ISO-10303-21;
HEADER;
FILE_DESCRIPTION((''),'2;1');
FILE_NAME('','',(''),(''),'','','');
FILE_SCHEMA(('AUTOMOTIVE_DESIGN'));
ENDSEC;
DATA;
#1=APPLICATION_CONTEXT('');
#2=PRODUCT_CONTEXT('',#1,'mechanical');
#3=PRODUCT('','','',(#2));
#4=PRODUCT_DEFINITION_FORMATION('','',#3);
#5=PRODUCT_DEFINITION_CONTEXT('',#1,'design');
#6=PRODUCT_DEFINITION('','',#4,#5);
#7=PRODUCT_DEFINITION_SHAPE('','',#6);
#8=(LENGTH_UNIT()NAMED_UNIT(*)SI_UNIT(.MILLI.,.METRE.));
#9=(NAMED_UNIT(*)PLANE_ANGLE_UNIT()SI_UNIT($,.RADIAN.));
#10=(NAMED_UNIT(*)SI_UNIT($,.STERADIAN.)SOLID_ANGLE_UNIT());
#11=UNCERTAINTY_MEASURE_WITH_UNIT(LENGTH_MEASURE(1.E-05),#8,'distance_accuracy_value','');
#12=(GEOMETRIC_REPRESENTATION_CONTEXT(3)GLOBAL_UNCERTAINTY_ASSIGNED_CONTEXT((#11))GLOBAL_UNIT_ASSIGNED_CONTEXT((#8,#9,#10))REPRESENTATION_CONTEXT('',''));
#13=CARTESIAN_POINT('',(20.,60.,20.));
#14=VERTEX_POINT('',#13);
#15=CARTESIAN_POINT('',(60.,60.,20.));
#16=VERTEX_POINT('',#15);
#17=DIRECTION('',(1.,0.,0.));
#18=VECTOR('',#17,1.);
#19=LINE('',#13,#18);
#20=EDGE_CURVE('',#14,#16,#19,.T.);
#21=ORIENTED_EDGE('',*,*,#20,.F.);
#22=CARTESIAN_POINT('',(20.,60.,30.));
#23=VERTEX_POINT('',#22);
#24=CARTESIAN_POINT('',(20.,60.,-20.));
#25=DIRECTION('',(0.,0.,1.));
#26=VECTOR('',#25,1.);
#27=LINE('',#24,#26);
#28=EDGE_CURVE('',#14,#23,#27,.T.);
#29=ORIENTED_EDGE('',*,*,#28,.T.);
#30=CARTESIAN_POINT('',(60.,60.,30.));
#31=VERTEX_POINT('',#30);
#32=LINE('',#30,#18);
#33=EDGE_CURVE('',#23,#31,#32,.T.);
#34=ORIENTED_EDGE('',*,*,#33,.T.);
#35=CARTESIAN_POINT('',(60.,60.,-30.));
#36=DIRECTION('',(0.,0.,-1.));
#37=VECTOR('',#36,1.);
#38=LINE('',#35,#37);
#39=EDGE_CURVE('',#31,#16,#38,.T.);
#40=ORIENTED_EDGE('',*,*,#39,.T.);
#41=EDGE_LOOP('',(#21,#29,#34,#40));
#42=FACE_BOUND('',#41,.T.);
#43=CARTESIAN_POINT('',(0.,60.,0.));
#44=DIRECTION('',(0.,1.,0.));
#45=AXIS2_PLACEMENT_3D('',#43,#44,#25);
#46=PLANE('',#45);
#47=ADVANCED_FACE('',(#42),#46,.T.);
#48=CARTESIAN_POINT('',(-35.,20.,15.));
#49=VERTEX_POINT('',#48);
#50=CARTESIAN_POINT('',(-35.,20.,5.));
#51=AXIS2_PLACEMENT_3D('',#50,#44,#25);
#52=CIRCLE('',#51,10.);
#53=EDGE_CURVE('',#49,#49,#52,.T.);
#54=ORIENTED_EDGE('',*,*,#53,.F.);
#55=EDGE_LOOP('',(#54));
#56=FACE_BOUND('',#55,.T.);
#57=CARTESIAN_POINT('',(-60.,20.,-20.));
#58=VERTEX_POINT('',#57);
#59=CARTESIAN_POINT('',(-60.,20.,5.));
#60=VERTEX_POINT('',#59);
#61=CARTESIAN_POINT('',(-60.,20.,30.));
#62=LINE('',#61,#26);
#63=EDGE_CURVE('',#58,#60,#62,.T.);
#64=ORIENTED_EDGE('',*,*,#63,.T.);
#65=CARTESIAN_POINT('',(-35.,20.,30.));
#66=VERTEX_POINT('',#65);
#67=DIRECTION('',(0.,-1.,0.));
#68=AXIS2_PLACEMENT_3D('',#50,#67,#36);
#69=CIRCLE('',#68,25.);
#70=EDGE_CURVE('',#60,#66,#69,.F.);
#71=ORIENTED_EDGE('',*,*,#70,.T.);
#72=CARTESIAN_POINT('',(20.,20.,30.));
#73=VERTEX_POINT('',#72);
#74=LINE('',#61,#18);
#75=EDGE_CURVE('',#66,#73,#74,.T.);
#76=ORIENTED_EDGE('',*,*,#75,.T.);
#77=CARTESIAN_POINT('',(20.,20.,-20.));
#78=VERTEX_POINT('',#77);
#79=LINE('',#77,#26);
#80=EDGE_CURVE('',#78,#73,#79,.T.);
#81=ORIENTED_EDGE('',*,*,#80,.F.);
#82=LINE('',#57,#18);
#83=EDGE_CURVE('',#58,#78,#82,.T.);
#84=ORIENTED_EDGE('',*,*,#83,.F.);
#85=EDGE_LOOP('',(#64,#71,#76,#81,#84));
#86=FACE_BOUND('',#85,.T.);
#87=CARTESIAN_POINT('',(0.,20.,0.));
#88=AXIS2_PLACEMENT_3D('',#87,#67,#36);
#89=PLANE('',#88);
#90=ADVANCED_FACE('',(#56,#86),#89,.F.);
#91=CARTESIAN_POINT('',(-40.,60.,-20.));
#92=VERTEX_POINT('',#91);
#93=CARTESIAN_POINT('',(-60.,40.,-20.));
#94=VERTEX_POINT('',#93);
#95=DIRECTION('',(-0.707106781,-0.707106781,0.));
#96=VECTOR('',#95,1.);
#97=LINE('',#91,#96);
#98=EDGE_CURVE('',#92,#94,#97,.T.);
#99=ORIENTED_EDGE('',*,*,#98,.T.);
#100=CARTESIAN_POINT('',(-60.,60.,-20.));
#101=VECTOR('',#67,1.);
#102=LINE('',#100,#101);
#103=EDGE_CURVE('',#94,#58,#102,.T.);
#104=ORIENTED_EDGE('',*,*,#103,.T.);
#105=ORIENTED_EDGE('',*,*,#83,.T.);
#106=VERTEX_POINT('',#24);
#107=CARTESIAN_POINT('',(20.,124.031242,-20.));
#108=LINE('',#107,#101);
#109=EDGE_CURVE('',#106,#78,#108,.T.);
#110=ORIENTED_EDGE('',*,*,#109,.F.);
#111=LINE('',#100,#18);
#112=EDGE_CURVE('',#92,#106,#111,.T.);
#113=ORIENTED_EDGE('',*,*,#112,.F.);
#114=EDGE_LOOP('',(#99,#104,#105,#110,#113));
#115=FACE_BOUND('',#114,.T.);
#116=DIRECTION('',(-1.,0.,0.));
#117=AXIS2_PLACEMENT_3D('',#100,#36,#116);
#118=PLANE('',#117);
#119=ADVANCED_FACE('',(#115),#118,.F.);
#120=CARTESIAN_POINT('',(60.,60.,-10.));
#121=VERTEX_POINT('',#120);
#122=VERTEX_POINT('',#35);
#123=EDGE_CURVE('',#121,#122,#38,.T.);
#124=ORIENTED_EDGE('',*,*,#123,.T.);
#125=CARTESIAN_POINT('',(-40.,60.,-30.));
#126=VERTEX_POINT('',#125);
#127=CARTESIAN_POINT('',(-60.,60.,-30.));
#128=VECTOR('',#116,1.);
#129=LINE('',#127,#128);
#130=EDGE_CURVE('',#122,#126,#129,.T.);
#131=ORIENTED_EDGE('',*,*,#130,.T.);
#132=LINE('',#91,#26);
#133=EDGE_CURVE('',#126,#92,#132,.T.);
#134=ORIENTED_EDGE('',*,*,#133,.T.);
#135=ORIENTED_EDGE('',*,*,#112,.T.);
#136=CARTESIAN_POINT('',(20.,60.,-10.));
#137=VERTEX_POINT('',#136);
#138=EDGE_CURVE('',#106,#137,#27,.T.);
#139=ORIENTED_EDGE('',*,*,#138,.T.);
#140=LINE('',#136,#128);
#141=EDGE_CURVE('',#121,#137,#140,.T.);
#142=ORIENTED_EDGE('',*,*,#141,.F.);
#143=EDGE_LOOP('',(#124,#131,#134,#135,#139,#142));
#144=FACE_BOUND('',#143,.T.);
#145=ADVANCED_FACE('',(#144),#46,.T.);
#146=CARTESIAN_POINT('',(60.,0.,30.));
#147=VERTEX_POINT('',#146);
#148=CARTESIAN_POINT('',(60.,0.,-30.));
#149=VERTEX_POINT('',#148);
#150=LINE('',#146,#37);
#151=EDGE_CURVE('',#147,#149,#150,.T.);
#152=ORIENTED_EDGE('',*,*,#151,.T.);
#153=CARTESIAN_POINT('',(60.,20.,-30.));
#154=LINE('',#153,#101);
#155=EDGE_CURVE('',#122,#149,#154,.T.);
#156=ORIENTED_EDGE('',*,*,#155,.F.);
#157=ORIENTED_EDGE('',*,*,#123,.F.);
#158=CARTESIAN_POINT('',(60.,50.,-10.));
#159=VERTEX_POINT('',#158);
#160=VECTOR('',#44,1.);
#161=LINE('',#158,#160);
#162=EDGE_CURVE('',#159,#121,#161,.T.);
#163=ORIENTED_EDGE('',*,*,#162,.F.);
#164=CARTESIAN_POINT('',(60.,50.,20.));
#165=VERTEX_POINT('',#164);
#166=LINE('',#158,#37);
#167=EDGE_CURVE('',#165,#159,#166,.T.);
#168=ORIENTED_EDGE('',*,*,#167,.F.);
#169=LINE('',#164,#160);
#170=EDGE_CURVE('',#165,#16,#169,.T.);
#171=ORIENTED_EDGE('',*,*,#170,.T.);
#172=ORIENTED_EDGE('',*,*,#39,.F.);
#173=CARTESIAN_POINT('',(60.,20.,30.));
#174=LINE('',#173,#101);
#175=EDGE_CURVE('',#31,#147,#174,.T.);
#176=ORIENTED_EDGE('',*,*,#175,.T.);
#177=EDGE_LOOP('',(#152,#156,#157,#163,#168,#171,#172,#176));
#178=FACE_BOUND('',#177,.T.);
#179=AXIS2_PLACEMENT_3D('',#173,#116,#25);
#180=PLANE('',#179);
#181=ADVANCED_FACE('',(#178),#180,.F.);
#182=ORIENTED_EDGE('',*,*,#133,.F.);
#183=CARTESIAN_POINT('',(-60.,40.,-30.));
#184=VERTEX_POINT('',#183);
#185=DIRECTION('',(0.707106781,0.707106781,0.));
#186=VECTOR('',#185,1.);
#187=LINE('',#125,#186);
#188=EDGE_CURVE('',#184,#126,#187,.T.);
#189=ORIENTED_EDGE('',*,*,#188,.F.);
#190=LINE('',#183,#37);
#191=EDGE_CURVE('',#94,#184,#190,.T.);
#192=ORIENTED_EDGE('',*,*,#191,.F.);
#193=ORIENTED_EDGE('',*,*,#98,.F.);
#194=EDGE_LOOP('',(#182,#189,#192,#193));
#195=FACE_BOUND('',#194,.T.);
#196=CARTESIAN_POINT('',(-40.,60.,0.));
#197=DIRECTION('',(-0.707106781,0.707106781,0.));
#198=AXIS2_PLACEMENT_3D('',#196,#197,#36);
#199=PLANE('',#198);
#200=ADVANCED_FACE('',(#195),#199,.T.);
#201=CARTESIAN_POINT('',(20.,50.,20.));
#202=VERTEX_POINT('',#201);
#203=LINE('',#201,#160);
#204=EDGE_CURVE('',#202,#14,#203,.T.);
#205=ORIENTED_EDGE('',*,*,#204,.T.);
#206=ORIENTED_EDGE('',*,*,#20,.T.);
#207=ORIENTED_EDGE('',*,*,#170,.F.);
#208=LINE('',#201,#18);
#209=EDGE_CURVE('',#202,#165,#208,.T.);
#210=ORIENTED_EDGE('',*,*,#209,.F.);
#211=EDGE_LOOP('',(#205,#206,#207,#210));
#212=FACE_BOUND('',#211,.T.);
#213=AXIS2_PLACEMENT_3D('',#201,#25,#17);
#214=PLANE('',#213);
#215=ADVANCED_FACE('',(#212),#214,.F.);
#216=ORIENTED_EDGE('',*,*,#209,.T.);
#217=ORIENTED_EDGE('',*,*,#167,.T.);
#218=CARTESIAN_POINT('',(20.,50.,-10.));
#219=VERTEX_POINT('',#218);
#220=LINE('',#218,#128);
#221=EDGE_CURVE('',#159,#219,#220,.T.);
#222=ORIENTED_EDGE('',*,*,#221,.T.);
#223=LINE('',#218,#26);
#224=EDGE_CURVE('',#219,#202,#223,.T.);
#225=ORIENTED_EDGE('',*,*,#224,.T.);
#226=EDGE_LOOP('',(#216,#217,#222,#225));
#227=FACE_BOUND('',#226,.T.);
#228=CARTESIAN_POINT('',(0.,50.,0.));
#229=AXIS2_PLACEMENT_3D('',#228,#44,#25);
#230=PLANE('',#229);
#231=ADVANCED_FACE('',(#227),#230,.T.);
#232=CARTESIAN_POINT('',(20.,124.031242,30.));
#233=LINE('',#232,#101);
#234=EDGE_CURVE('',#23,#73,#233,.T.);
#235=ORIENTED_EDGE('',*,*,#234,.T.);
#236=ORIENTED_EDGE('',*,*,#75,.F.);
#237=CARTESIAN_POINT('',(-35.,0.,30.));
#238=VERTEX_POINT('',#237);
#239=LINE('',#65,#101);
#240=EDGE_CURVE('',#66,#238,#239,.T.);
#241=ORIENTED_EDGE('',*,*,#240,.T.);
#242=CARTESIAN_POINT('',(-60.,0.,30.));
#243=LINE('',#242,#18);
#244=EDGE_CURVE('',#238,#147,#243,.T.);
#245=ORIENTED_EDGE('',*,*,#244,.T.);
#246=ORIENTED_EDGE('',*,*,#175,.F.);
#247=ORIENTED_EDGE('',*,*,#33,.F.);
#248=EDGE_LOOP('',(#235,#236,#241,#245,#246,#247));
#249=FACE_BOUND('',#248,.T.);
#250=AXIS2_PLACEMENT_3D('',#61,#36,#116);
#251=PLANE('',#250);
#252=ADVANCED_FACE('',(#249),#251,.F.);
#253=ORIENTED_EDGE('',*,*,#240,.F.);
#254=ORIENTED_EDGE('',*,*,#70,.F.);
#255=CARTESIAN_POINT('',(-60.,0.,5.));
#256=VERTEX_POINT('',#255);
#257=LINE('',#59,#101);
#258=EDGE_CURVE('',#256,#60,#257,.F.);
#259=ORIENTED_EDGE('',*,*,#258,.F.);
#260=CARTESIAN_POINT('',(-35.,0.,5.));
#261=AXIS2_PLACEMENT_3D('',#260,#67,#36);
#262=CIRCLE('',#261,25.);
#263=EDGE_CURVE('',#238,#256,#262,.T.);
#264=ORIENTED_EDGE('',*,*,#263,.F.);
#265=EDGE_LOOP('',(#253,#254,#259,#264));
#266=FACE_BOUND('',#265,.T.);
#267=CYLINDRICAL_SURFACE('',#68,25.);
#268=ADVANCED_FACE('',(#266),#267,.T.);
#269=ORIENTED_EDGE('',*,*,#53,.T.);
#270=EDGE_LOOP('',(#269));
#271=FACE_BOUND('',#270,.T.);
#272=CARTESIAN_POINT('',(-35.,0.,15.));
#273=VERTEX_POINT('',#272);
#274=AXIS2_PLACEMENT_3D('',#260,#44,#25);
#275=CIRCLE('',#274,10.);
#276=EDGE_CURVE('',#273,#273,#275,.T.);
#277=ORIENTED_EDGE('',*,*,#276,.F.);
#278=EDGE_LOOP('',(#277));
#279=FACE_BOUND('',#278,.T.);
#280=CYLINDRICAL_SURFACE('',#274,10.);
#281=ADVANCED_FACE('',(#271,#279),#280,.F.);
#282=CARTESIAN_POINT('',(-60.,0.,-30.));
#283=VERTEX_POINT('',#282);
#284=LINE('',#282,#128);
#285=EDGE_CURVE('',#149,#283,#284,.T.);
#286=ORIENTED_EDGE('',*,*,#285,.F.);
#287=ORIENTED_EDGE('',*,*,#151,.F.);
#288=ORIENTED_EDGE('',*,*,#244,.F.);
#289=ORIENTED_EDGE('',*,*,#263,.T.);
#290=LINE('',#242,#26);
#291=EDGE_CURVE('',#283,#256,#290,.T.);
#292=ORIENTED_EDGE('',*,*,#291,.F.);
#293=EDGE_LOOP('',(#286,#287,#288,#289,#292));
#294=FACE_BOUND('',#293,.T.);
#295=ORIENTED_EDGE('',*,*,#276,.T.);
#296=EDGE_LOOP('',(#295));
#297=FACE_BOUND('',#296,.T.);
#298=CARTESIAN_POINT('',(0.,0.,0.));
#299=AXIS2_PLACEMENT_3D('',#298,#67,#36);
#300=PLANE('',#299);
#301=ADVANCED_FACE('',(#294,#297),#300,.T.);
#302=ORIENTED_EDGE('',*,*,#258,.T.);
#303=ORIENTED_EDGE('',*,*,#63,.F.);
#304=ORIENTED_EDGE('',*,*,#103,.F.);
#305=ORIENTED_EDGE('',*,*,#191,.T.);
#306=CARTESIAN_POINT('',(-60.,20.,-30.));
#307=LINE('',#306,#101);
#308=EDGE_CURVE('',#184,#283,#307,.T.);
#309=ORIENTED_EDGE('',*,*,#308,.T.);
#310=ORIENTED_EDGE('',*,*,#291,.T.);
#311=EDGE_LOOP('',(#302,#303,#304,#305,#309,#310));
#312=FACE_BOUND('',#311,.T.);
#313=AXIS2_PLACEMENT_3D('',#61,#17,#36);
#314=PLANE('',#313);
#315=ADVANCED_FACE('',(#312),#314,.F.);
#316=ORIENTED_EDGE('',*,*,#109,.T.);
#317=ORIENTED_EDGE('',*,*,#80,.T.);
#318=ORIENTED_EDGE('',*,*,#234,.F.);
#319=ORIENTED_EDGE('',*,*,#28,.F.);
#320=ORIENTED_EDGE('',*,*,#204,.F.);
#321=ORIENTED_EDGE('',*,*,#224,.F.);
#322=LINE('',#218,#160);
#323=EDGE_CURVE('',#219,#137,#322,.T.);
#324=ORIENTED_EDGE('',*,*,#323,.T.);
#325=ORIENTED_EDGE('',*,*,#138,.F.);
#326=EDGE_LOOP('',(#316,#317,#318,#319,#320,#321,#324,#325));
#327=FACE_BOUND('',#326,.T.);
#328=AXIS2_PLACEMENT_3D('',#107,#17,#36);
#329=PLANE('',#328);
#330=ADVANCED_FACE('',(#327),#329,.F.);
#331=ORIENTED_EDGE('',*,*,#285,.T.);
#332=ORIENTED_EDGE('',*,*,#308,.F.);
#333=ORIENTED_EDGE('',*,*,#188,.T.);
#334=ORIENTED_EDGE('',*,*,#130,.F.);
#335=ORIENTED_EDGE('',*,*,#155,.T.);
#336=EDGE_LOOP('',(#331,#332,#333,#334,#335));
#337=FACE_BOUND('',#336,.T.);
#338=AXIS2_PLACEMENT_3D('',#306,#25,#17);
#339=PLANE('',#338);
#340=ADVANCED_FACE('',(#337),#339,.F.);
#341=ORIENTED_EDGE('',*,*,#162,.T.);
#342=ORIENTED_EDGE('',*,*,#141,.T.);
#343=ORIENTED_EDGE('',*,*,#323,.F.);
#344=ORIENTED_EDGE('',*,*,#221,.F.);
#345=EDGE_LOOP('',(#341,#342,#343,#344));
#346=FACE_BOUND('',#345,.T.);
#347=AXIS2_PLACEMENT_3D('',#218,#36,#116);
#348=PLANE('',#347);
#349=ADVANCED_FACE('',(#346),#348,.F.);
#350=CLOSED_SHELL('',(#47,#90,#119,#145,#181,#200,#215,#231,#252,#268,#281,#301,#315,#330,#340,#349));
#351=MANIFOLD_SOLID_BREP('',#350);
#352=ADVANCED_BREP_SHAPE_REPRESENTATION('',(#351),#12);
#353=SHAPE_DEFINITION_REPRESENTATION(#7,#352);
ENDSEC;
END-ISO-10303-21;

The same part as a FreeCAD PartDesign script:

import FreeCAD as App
import Part
import Sketcher

V = App.Vector
Q = App.Units.Quantity


def edges_at(feature, points):
    """Names of the edges that pass closest to the given points."""
    edges = feature.Shape.Edges
    near = lambda p: min(range(len(edges)), key=lambda i: edges[i].distToShape(Part.Vertex(*p))[0])
    return sorted({f"Edge{near(p) + 1}" for p in points})


def add_polygon(sketch, points):
    """Adds a closed chain of lines whose ends are joined by coincident constraints."""
    first, n = sketch.GeometryCount, len(points)
    for a, b in zip(points, points[1:] + points[:1]):
        sketch.addGeometry(Part.LineSegment(App.Vector(*a, 0), App.Vector(*b, 0)), False)
    for i in range(n):
        sketch.addConstraint(Sketcher.Constraint("Coincident", first + i, 2, first + (i + 1) % n, 1))

doc = App.newDocument("Part")
body = doc.addObject("PartDesign::Body", "Body")

# Sketch on XZ plane
sketch1 = body.newObject("Sketcher::SketchObject", "Sketch")
sketch1.AttachmentSupport = (doc.getObject("XZ_Plane"), [""])
sketch1.MapMode = "FlatFace"
add_polygon(sketch1, [(-60, -30), (-60, 30), (60, 30), (60, -30)])  # lines 0-3
sketch1.addConstraint(Sketcher.Constraint("Vertical", 0))
sketch1.addConstraint(Sketcher.Constraint("Horizontal", 1))
sketch1.addConstraint(Sketcher.Constraint("Vertical", 2))
sketch1.addConstraint(Sketcher.Constraint("Horizontal", 3))
sketch1.addConstraint(Sketcher.Constraint("Symmetric", 0, 2, 2, 2, -1, 1))
sketch1.addConstraint(Sketcher.Constraint("DistanceX", 1, 1, 1, 2, Q("120 mm")))
sketch1.addConstraint(Sketcher.Constraint("DistanceY", 0, 1, 0, 2, Q("60 mm")))
pad1 = body.newObject("PartDesign::Pad", "Pad")
pad1.Profile = sketch1
pad1.Length = 20
pad1.Reversed = True

# Sketch on XZ plane
sketch2 = body.newObject("Sketcher::SketchObject", "Sketch001")
sketch2.AttachmentSupport = (doc.getObject("XZ_Plane"), [""])
sketch2.MapMode = "FlatFace"
sketch2.AttachmentOffset = App.Placement(V(0, 0, -20), App.Rotation())
add_polygon(sketch2, [(-60, -30), (-60, -20), (60, -20), (60, -30)])  # lines 0-3
sketch2.addConstraint(Sketcher.Constraint("Vertical", 0))
sketch2.addConstraint(Sketcher.Constraint("Horizontal", 1))
sketch2.addConstraint(Sketcher.Constraint("Vertical", 2))
sketch2.addConstraint(Sketcher.Constraint("Horizontal", 3))
sketch2.addConstraint(Sketcher.Constraint("DistanceX", 1, 1, 1, 2, Q("120 mm")))
sketch2.addConstraint(Sketcher.Constraint("DistanceY", 0, 1, 0, 2, Q("10 mm")))
sketch2.addConstraint(Sketcher.Constraint("DistanceX", 0, 2, -1, 1, Q("60 mm")))
sketch2.addConstraint(Sketcher.Constraint("DistanceY", 0, 2, -1, 1, Q("20 mm")))
pad2 = body.newObject("PartDesign::Pad", "Pad001")
pad2.Profile = sketch2
pad2.Length = 40
pad2.Reversed = True
doc.recompute()

chamfer = body.newObject("PartDesign::Chamfer", "Chamfer")
chamfer.Base = (pad2, edges_at(pad2, [(-60, 60, -25)]))
chamfer.Size = 20
doc.recompute()

fillet = body.newObject("PartDesign::Fillet", "Fillet")
fillet.Base = (chamfer, edges_at(chamfer, [(-60, 10, 30)]))
fillet.Radius = 25

# Sketch on XZ plane
sketch3 = body.newObject("Sketcher::SketchObject", "Sketch002")
sketch3.AttachmentSupport = (doc.getObject("XZ_Plane"), [""])
sketch3.MapMode = "FlatFace"
sketch3.AttachmentOffset = App.Placement(V(0, 0, -20), App.Rotation())
add_polygon(sketch3, [(20, -20), (20, 30), (60, 30), (60, -20)])  # lines 0-3
sketch3.addConstraint(Sketcher.Constraint("Vertical", 0))
sketch3.addConstraint(Sketcher.Constraint("Horizontal", 1))
sketch3.addConstraint(Sketcher.Constraint("Vertical", 2))
sketch3.addConstraint(Sketcher.Constraint("Horizontal", 3))
sketch3.addConstraint(Sketcher.Constraint("DistanceX", 1, 1, 1, 2, Q("40 mm")))
sketch3.addConstraint(Sketcher.Constraint("DistanceY", 0, 1, 0, 2, Q("50 mm")))
sketch3.addConstraint(Sketcher.Constraint("DistanceX", -1, 1, 0, 2, Q("20 mm")))
sketch3.addConstraint(Sketcher.Constraint("DistanceY", -1, 1, 0, 2, Q("30 mm")))
pad3 = body.newObject("PartDesign::Pad", "Pad002")
pad3.Profile = sketch3
pad3.Length = 40
pad3.Reversed = True

# Sketch on XZ plane
sketch4 = body.newObject("Sketcher::SketchObject", "Sketch003")
sketch4.AttachmentSupport = (doc.getObject("XZ_Plane"), [""])
sketch4.MapMode = "FlatFace"
sketch4.AttachmentOffset = App.Placement(V(0, 0, -60), App.Rotation())
add_polygon(sketch4, [(20, -10), (20, 20), (60, 20), (60, -10)])  # lines 0-3
sketch4.addConstraint(Sketcher.Constraint("Vertical", 0))
sketch4.addConstraint(Sketcher.Constraint("Horizontal", 1))
sketch4.addConstraint(Sketcher.Constraint("Vertical", 2))
sketch4.addConstraint(Sketcher.Constraint("Horizontal", 3))
sketch4.addConstraint(Sketcher.Constraint("DistanceX", 1, 1, 1, 2, Q("40 mm")))
sketch4.addConstraint(Sketcher.Constraint("DistanceY", 0, 1, 0, 2, Q("30 mm")))
sketch4.addConstraint(Sketcher.Constraint("DistanceX", -1, 1, 0, 2, Q("20 mm")))
sketch4.addConstraint(Sketcher.Constraint("DistanceY", -1, 1, 0, 2, Q("20 mm")))
pocket1 = body.newObject("PartDesign::Pocket", "Pocket")
pocket1.Profile = sketch4
pocket1.Length = 10
pocket1.Reversed = True

# Sketch on XZ plane
sketch5 = body.newObject("Sketcher::SketchObject", "Sketch004")
sketch5.AttachmentSupport = (doc.getObject("XZ_Plane"), [""])
sketch5.MapMode = "FlatFace"
sketch5.AttachmentOffset = App.Placement(V(0, 0, -20), App.Rotation())
sketch5.addGeometry(Part.Circle(V(-35, 5, 0), V(0, 0, 1), 10), False)
sketch5.addConstraint(Sketcher.Constraint("Diameter", 0, Q("20 mm")))
sketch5.addConstraint(Sketcher.Constraint("DistanceX", 0, 3, -1, 1, Q("35 mm")))
sketch5.addConstraint(Sketcher.Constraint("DistanceY", -1, 1, 0, 3, Q("5 mm")))
pocket2 = body.newObject("PartDesign::Pocket", "Pocket001")
pocket2.Profile = sketch5
pocket2.Type = "ThroughAll"
pocket2.Reversed = True

doc.recompute()
